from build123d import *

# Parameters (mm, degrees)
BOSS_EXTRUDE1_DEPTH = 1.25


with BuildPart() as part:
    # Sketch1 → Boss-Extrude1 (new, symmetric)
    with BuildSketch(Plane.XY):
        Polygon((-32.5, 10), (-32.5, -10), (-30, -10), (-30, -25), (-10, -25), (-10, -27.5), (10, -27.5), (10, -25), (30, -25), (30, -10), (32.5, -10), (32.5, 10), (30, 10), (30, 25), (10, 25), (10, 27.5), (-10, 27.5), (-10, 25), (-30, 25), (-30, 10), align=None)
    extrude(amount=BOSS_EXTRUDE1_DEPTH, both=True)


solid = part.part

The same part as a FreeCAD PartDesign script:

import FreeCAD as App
import Part
import Sketcher


def add_polygon(sketch, points):
    """Adds a closed chain of lines whose ends are joined by coincident constraints."""
    first, n = sketch.GeometryCount, len(points)
    for a, b in zip(points, points[1:] + points[:1]):
        sketch.addGeometry(Part.LineSegment(App.Vector(*a, 0), App.Vector(*b, 0)), False)
    for i in range(n):
        sketch.addConstraint(Sketcher.Constraint("Coincident", first + i, 2, first + (i + 1) % n, 1))

doc = App.newDocument("Part")
body = doc.addObject("PartDesign::Body", "Body")

sketch1 = body.newObject("Sketcher::SketchObject", "Sketch")
sketch1.AttachmentSupport = (doc.getObject("XY_Plane"), [""])
sketch1.MapMode = "FlatFace"
add_polygon(sketch1, [(-32.5, 10), (-32.5, -10), (-30, -10), (-30, -25), (-10, -25), (-10, -27.5), (10, -27.5), (10, -25), (30, -25), (30, -10), (32.5, -10), (32.5, 10), (30, 10), (30, 25), (10, 25), (10, 27.5), (-10, 27.5), (-10, 25), (-30, 25), (-30, 10)])
sketch1.addConstraint([
    Sketcher.Constraint("Vertical", 0),
    Sketcher.Constraint("Horizontal", 1),
    Sketcher.Constraint("Vertical", 2),
    Sketcher.Constraint("Horizontal", 3),
    Sketcher.Constraint("Vertical", 4),
    Sketcher.Constraint("Horizontal", 5),
    Sketcher.Constraint("Vertical", 6),
    Sketcher.Constraint("Horizontal", 7),
    Sketcher.Constraint("Vertical", 8),
    Sketcher.Constraint("Horizontal", 9),
    Sketcher.Constraint("Vertical", 10),
    Sketcher.Constraint("Horizontal", 11),
    Sketcher.Constraint("Vertical", 12),
    Sketcher.Constraint("Horizontal", 13),
    Sketcher.Constraint("Vertical", 14),
    Sketcher.Constraint("Horizontal", 15),
    Sketcher.Constraint("Vertical", 16),
    Sketcher.Constraint("Horizontal", 17),
    Sketcher.Constraint("Vertical", 18),
    Sketcher.Constraint("Horizontal", 19),
    Sketcher.Constraint("Symmetric", 0, 2, 10, 2, -1, 1),
    Sketcher.Constraint("Symmetric", 2, 2, 12, 2, -1, 1),
    Sketcher.Constraint("Symmetric", 4, 2, 14, 2, -1, 1),
    Sketcher.Constraint("Symmetric", 6, 2, 16, 2, -1, 1),
    Sketcher.Constraint("Symmetric", 8, 2, 18, 2, -1, 1),
    Sketcher.Constraint("Symmetric", 3, 2, 6, 2, -2),
    Sketcher.Constraint("Symmetric", 1, 2, 8, 2, -2),
    Sketcher.Constraint("Equal", 3, 5),
    Sketcher.Constraint("Equal", 17, 0),
    Sketcher.Constraint("Equal", 19, 4),
    Sketcher.Constraint("DistanceX", 3, 1, 3, 2, 20.0),
    Sketcher.Constraint("DistanceY", 2, 2, 2, 1, 15.0),
    Sketcher.Constraint("DistanceX", 1, 1, 1, 2, 2.5),
])
pad1 = body.newObject("PartDesign::Pad", "Pad")
pad1.Profile = sketch1
pad1.Length = 2.5
pad1.Midplane = True

doc.recompute()
